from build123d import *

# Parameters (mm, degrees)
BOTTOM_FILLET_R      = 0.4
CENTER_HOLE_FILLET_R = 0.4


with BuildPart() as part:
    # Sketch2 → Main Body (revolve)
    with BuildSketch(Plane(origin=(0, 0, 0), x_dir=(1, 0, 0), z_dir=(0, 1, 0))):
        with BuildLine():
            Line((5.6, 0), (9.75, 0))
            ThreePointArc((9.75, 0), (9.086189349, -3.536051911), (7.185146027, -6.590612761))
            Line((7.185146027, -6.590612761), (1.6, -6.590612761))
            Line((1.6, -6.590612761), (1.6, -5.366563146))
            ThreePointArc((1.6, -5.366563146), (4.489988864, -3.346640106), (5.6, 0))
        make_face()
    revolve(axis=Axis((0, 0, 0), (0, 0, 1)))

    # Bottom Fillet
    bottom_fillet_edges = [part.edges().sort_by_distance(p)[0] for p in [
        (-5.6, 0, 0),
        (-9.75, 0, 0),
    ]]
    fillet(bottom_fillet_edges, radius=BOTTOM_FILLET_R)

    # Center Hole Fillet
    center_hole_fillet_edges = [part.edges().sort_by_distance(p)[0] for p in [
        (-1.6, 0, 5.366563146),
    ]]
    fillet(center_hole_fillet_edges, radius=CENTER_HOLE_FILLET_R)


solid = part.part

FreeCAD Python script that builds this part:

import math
import FreeCAD as App
import Part
import Sketcher
from FreeCAD import Vector


def edges_at(feature, points):
    """Names of the edges that pass closest to the given points."""
    edges = feature.Shape.Edges
    near = lambda p: min(range(len(edges)), key=lambda i: edges[i].distToShape(Part.Vertex(*p))[0])
    return sorted({f"Edge{near(p) + 1}" for p in points})

doc = App.newDocument("Part")
body = doc.addObject("PartDesign::Body", "Body")

sketch1 = doc.addObject("Sketcher::SketchObject", "Sketch")
body.addObject(sketch1)
sketch1.AttachmentSupport = (doc.XZ_Plane, [""])
sketch1.MapMode = "FlatFace"
sketch1.addGeometry([
    Part.LineSegment(Vector(9.8, 0, 0), Vector(5.6, 0, 0)),
    Part.ArcOfCircle(Part.Circle(Vector(0, 0, 0), Vector(0, 0, 1), 5.6), math.radians(0), math.radians(73)),
    Part.LineSegment(Vector(1.6, 5.4, 0), Vector(1.6, 6.6, 0)),
    Part.LineSegment(Vector(1.6, 6.6, 0), Vector(7.2, 6.6, 0)),
    Part.ArcOfCircle(Part.Circle(Vector(0, 0, 0), Vector(0, 0, 1), 9.7), math.radians(0), math.radians(43)),
], False)
sketch1.addConstraint([
    Sketcher.Constraint("Coincident", 0, 2, 1, 1),
    Sketcher.Constraint("Coincident", 1, 2, 2, 1),
    Sketcher.Constraint("Coincident", 2, 2, 3, 1),
    Sketcher.Constraint("Coincident", 3, 2, 4, 2),
    Sketcher.Constraint("Coincident", 4, 1, 0, 1),
    Sketcher.Constraint("Horizontal", 0),
    Sketcher.Constraint("Vertical", 2),
    Sketcher.Constraint("Horizontal", 3),
    Sketcher.Constraint("Coincident", 1, 3, -1, 1),
    Sketcher.Constraint("Coincident", 4, 3, -1, 1),
    Sketcher.Constraint("PointOnObject", 0, 2, -1),
    Sketcher.Constraint("Radius", 1, 5.6),
    Sketcher.Constraint("Radius", 4, 9.75),
    Sketcher.Constraint("DistanceX", 1, 2, 0, 2, 4.0),
    Sketcher.Constraint("DistanceY", 2, 1, 2, 2, 1.22405),
])
revolution = doc.addObject("PartDesign::Revolution", "Revolution")
body.addObject(revolution)
revolution.Profile = sketch1
revolution.ReferenceAxis = (sketch1, ["V_Axis"])
revolution.Angle = 360
doc.recompute()

fillet = doc.addObject("PartDesign::Fillet", "Fillet")
body.addObject(fillet)
fillet.Base = (revolution, edges_at(revolution, [(-5.6, 0, 0), (-9.75, 0, 0)]))
fillet.Radius = 0.4
doc.recompute()

fillet2 = doc.addObject("PartDesign::Fillet", "Fillet001")
body.addObject(fillet2)
fillet2.Base = (fillet, edges_at(fillet, [(-1.6, 0, 5.367)]))
fillet2.Radius = 0.4

doc.recompute()
